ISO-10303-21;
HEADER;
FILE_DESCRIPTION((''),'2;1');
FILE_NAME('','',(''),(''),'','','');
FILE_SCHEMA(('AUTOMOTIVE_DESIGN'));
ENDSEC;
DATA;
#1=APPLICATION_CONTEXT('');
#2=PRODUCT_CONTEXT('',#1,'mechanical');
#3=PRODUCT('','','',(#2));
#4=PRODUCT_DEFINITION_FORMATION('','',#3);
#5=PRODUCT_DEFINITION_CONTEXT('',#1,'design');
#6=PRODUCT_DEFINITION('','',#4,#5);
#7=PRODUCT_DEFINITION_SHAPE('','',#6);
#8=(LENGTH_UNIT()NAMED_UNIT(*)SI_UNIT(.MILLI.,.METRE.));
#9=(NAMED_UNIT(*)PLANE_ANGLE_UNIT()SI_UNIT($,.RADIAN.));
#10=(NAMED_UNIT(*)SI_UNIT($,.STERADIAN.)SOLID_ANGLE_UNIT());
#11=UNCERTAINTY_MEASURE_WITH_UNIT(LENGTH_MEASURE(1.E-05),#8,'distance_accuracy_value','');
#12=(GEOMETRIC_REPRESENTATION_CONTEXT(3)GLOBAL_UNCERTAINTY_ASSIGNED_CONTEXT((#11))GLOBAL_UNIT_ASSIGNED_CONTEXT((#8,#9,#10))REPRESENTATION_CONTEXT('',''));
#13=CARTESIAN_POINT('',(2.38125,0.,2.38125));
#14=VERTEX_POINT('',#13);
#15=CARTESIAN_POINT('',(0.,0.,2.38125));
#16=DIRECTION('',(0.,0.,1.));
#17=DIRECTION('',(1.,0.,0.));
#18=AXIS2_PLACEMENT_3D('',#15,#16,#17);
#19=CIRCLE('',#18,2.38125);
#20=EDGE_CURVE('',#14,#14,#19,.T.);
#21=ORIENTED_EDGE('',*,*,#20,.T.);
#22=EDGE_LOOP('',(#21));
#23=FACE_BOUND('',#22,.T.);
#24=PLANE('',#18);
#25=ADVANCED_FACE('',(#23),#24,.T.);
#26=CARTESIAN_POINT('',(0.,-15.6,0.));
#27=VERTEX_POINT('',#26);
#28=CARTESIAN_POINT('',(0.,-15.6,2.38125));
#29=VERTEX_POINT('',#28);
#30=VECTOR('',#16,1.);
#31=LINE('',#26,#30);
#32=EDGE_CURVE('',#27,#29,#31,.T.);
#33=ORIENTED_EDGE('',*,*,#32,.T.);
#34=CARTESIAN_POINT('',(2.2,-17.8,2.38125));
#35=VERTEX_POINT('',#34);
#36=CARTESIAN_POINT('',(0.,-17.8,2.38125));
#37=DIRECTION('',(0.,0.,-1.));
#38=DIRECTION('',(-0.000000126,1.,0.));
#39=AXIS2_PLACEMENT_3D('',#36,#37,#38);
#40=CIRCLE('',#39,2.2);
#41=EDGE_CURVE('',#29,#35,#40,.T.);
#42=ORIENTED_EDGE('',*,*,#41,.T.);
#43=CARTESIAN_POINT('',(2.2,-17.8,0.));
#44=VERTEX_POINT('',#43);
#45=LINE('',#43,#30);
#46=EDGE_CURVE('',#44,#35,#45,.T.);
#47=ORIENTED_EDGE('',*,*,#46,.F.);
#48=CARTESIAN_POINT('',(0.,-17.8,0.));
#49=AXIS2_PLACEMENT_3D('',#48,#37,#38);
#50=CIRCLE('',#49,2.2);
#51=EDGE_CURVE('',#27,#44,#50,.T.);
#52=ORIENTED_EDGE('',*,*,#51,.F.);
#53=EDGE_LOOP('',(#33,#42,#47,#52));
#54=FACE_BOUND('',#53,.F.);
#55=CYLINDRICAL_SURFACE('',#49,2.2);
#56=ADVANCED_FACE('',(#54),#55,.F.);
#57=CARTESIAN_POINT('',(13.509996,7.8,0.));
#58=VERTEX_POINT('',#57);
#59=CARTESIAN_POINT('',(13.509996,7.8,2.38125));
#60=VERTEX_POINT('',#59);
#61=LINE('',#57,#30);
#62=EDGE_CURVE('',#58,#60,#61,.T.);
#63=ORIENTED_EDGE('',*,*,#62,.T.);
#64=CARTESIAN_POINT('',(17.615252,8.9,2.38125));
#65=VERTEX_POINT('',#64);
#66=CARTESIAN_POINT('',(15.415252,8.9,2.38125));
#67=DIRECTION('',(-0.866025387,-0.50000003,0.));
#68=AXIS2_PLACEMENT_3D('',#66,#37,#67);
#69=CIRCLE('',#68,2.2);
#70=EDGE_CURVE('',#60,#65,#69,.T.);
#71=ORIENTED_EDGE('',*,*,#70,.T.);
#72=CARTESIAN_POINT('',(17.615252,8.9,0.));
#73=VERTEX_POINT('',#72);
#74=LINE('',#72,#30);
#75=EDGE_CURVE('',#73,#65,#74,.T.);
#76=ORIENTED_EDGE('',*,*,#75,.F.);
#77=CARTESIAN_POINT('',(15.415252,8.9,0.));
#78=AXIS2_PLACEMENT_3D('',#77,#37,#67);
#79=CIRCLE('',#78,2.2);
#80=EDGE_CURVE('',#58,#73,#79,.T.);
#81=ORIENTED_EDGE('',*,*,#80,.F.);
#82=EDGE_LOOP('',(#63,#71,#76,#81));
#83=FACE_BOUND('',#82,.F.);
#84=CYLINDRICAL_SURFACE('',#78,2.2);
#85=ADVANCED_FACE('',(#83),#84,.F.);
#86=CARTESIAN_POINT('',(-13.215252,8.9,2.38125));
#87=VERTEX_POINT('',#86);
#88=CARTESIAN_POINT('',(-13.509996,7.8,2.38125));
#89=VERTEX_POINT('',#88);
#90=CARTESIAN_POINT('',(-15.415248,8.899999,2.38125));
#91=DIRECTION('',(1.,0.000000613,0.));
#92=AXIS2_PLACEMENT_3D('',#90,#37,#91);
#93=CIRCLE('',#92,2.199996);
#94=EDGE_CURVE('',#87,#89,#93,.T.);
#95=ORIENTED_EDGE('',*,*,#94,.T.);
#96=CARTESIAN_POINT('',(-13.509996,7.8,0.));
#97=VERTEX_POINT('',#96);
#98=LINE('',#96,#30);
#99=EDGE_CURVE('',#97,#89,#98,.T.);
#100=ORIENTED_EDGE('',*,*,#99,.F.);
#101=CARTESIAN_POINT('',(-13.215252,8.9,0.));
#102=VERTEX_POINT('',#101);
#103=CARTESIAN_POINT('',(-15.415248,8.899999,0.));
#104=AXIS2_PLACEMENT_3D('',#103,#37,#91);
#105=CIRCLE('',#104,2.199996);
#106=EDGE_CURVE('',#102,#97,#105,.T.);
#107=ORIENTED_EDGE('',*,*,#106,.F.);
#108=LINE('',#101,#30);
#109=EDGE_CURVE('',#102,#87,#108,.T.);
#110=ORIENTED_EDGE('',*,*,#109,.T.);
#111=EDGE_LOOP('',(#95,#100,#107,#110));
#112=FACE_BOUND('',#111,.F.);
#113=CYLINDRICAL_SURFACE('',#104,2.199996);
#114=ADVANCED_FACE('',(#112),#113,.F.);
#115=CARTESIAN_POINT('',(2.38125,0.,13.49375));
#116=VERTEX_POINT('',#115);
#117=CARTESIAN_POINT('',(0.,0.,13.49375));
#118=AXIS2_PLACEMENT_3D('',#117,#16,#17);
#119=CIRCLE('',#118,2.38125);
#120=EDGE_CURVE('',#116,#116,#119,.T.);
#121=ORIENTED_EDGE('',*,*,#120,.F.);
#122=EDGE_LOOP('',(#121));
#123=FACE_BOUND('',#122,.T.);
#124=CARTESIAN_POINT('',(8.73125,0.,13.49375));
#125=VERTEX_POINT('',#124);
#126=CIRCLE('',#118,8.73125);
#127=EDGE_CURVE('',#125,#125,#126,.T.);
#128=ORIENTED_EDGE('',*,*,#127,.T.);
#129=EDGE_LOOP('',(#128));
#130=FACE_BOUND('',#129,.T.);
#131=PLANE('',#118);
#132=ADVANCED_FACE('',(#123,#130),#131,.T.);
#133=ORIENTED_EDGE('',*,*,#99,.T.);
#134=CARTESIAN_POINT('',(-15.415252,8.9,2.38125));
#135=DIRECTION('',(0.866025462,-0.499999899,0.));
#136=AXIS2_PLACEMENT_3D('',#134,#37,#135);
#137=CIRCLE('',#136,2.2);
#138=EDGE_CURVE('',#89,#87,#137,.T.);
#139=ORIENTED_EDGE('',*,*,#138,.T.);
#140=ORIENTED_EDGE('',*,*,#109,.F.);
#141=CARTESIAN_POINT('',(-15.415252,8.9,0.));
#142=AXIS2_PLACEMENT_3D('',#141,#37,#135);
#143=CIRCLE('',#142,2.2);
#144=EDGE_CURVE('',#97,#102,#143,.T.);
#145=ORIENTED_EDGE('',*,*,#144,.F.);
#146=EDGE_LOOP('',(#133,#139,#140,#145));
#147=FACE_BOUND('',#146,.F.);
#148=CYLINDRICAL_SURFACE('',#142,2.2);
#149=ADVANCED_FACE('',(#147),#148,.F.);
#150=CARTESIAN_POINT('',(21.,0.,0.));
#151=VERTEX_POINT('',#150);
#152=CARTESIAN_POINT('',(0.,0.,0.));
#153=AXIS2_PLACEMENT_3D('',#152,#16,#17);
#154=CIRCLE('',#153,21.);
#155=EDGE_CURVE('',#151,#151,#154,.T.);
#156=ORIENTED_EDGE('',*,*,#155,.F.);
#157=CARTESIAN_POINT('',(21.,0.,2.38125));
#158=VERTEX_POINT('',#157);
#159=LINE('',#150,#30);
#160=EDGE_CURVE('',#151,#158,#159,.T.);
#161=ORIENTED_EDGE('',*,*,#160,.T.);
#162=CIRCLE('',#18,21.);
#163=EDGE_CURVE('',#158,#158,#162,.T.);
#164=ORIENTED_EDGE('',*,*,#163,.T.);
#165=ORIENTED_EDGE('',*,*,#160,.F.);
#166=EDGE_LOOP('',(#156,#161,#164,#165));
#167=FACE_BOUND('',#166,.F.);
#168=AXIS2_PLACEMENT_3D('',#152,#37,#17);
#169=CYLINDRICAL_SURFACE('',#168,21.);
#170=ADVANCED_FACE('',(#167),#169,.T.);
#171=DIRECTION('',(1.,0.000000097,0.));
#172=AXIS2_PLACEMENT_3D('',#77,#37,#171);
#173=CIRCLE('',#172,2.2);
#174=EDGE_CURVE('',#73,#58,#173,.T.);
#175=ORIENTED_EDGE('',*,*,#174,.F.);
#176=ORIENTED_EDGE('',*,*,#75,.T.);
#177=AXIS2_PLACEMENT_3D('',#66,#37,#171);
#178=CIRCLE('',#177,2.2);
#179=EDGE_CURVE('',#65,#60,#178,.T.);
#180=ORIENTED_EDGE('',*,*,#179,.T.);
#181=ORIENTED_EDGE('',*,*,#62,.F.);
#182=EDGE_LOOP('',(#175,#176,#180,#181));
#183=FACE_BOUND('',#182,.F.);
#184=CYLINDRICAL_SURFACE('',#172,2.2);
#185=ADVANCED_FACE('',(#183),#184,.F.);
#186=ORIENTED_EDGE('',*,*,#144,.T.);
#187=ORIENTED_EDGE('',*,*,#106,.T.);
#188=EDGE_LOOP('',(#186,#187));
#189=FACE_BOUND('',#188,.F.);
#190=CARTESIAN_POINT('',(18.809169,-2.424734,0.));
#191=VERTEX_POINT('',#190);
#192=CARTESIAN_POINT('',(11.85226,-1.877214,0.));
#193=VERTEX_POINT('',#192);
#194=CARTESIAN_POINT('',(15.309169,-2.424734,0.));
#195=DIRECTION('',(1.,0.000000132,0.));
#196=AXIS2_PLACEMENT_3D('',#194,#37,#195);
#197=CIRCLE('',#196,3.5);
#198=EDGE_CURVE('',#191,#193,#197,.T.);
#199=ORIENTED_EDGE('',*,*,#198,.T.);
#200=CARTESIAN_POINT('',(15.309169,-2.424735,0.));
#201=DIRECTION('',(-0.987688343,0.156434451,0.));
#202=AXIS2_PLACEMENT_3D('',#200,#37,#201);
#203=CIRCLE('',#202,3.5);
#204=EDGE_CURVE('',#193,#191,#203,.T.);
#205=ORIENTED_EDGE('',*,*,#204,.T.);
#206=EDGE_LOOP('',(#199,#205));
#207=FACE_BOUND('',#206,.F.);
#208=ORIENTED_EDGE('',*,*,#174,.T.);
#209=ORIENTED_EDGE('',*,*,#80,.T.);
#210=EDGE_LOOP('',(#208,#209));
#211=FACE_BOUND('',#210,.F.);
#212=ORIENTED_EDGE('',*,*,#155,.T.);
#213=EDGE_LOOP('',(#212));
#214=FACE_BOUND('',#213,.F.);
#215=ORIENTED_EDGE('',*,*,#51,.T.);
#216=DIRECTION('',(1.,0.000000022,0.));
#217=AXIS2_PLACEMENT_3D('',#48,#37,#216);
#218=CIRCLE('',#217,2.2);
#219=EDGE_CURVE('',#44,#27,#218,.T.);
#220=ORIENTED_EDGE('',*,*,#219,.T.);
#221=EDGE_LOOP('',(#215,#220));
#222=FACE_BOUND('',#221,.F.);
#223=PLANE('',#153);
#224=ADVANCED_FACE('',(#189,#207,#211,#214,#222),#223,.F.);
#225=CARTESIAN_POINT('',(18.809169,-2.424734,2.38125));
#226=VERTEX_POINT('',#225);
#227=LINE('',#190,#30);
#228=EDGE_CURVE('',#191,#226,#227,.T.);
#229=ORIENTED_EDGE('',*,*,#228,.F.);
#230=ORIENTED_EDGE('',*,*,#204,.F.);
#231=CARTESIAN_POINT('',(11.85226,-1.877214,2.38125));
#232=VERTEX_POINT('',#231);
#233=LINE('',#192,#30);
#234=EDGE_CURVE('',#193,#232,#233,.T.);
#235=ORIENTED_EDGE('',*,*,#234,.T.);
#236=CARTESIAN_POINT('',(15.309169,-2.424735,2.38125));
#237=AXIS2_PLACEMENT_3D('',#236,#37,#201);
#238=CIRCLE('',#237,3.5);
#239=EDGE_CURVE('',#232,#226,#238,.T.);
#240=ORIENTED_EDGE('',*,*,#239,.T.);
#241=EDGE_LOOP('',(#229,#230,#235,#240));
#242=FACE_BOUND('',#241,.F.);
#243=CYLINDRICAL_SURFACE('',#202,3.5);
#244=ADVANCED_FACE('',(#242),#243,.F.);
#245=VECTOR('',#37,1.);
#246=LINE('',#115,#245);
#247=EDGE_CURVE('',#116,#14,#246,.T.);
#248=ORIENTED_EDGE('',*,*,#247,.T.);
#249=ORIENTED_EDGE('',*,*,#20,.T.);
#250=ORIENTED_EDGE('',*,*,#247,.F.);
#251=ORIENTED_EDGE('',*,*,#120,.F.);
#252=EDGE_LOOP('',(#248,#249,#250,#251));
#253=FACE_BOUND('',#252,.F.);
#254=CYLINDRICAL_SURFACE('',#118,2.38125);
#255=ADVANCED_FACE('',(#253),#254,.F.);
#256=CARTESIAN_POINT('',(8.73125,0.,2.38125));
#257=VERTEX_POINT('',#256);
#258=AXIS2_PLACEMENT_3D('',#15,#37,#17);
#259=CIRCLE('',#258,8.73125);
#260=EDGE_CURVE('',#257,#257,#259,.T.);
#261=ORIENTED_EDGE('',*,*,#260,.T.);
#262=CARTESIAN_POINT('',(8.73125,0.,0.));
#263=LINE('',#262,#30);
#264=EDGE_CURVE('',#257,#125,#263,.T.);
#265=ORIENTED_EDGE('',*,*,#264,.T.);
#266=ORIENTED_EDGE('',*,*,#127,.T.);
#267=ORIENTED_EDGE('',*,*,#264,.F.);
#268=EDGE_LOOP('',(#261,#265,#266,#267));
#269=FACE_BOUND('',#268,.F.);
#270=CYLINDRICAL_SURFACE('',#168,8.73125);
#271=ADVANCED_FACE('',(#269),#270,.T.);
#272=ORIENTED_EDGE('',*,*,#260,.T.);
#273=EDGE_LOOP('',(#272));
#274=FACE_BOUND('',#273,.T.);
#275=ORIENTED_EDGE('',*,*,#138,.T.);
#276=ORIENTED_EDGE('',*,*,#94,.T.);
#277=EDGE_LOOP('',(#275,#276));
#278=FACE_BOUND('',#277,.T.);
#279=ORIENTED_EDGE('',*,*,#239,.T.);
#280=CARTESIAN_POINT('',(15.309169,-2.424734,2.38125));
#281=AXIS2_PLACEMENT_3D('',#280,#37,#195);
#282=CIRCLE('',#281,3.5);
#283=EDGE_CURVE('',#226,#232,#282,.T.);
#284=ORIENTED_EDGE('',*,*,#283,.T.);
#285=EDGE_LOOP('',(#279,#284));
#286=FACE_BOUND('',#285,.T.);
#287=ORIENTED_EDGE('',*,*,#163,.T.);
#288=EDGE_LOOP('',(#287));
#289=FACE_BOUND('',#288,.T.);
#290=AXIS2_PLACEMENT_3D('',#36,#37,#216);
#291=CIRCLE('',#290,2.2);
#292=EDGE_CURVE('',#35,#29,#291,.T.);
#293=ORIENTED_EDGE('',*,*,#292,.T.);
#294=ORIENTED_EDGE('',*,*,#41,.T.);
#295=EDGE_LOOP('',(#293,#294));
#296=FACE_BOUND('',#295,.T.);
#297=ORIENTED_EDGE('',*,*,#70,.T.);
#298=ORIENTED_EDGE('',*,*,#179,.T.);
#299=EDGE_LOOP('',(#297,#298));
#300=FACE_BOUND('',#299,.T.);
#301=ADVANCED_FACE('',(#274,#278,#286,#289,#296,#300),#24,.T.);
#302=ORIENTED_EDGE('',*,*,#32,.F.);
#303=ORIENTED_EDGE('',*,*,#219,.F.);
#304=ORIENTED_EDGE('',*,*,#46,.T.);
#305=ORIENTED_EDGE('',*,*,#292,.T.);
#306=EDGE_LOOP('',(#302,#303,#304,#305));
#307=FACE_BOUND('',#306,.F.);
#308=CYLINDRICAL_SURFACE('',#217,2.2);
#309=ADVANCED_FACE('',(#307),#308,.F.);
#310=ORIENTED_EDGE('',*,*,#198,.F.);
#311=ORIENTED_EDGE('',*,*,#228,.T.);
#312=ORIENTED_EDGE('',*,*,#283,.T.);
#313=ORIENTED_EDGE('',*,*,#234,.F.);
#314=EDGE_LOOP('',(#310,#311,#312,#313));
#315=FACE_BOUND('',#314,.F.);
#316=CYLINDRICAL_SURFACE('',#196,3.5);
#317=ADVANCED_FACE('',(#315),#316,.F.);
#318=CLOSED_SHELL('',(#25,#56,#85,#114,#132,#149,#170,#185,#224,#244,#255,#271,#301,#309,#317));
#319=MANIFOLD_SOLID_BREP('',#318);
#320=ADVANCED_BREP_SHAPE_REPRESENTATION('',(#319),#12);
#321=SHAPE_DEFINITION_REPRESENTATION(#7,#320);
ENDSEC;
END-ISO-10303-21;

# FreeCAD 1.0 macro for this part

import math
import FreeCAD as App
import Part
import Sketcher

V = App.Vector
Q = App.Units.Quantity

doc = App.newDocument("Part")
body = doc.addObject("PartDesign::Body", "Body")

# Sketch on XY plane
sketch1 = body.newObject("Sketcher::SketchObject", "Sketch")
sketch1.AttachmentSupport = (doc.getObject("XY_Plane"), [""])
sketch1.MapMode = "FlatFace"
sketch1.addGeometry(Part.Circle(V(0, 0, 0), V(0, 0, 1), 21), False)
sketch1.addConstraint(Sketcher.Constraint("Coincident", 0, 3, -1, 1))
sketch1.addConstraint(Sketcher.Constraint("Diameter", 0, Q("42 mm")))
pad1 = body.newObject("PartDesign::Pad", "Pad")
pad1.Profile = sketch1
pad1.Length = Q("0.09375 in")

# Sketch on XY plane
sketch2 = body.newObject("Sketcher::SketchObject", "Sketch001")
sketch2.AttachmentSupport = (doc.getObject("XY_Plane"), [""])
sketch2.MapMode = "FlatFace"
sketch2.addGeometry(Part.Circle(V(0, 0, 0), V(0, 0, 1), 9), False)
sketch2.addConstraint(Sketcher.Constraint("Coincident", 0, 3, -1, 1))
sketch2.addConstraint(Sketcher.Constraint("Diameter", 0, Q("0.6875 in")))
pad2 = body.newObject("PartDesign::Pad", "Pad001")
pad2.Profile = sketch2
pad2.Length = Q("0.53125 in")

# Sketch on XY plane
sketch3 = body.newObject("Sketcher::SketchObject", "Sketch002")
sketch3.AttachmentSupport = (doc.getObject("XY_Plane"), [""])
sketch3.MapMode = "FlatFace"
sketch3.AttachmentOffset = App.Placement(V(0, 0, 0.53125 * 25.4), App.Rotation())
sketch3.addGeometry(Part.Circle(V(0, 0, 0), V(0, 0, 1), 2.4), False)
sketch3.addConstraint(Sketcher.Constraint("Coincident", 0, 3, -1, 1))
sketch3.addConstraint(Sketcher.Constraint("Diameter", 0, Q("0.1875 in")))
pocket1 = body.newObject("PartDesign::Pocket", "Pocket")
pocket1.Profile = sketch3
pocket1.Length = Q("0.4375 in")

# Sketch on XY plane
sketch4 = body.newObject("Sketcher::SketchObject", "Sketch003")
sketch4.AttachmentSupport = (doc.getObject("XY_Plane"), [""])
sketch4.MapMode = "FlatFace"
sketch4.addGeometry(Part.ArcOfCircle(Part.Circle(V(0, -17.8, 0), V(0, 0, 1), 2.2), math.radians(0), math.radians(90)), False)
sketch4.addGeometry(Part.ArcOfCircle(Part.Circle(V(0, -17.8, 0), V(0, 0, 1), 2.2), math.radians(90), math.radians(360)), False)
sketch4.addConstraint(Sketcher.Constraint("Tangent", 0, 1, 1, 2))
sketch4.addConstraint(Sketcher.Constraint("Coincident", 1, 1, 0, 2))
sketch4.addConstraint(Sketcher.Constraint("PointOnObject", 0, 3, -2))
sketch4.addConstraint(Sketcher.Constraint("PointOnObject", 1, 1, -2))
sketch4.addConstraint(Sketcher.Constraint("Horizontal", 1, 3, 0, 1))
sketch4.addConstraint(Sketcher.Constraint("Radius", 0, Q("2.2 mm")))
sketch4.addConstraint(Sketcher.Constraint("DistanceY", 0, 3, -1, 1, Q("17.8 mm")))
pocket2 = body.newObject("PartDesign::Pocket", "Pocket001")
pocket2.Profile = sketch4
pocket2.Length = Q("0.09375 in")
pocket2.Reversed = True

# Sketch on XY plane
sketch5 = body.newObject("Sketcher::SketchObject", "Sketch004")
sketch5.AttachmentSupport = (doc.getObject("XY_Plane"), [""])
sketch5.MapMode = "FlatFace"
sketch5.addGeometry(Part.ArcOfCircle(Part.Circle(V(0, -17.8, 0), V(0, 0, 1), 2.2), math.radians(0), math.radians(90)), False)
sketch5.addGeometry(Part.ArcOfCircle(Part.Circle(V(0, -17.8, 0), V(0, 0, 1), 2.2), math.radians(90), math.radians(360)), False)
sketch5.addGeometry(Part.ArcOfCircle(Part.Circle(V(15.3, -2.4, 0), V(0, 0, 1), 3.5), math.radians(171), math.radians(360)), False)
sketch5.addGeometry(Part.ArcOfCircle(Part.Circle(V(15.3, -2.4, 0), V(0, 0, 1), 3.5), math.radians(0), math.radians(171)), False)
sketch5.addGeometry(Part.ArcOfCircle(Part.Circle(V(15.4, 8.9, 0), V(0, 0, 1), 2.2), math.radians(-150), math.radians(0)), False)
sketch5.addGeometry(Part.ArcOfCircle(Part.Circle(V(15.4, 8.9, 0), V(0, 0, 1), 2.2), math.radians(0), math.radians(210)), False)
sketch5.addGeometry(Part.ArcOfCircle(Part.Circle(V(-15.4, 8.9, 0), V(0, 0, 1), 2.2), math.radians(-30), math.radians(0)), False)
sketch5.addGeometry(Part.ArcOfCircle(Part.Circle(V(-15.4, 8.9, 0), V(0, 0, 1), 2.2), math.radians(0), math.radians(330)), False)
sketch5.addConstraint(Sketcher.Constraint("Tangent", 0, 1, 1, 2))
sketch5.addConstraint(Sketcher.Constraint("Coincident", 1, 1, 0, 2))
sketch5.addConstraint(Sketcher.Constraint("Tangent", 2, 1, 3, 2))
sketch5.addConstraint(Sketcher.Constraint("Coincident", 3, 1, 2, 2))
sketch5.addConstraint(Sketcher.Constraint("Tangent", 4, 1, 5, 2))
sketch5.addConstraint(Sketcher.Constraint("Coincident", 5, 1, 4, 2))
sketch5.addConstraint(Sketcher.Constraint("Tangent", 6, 1, 7, 2))
sketch5.addConstraint(Sketcher.Constraint("Coincident", 7, 1, 6, 2))
sketch5.addConstraint(Sketcher.Constraint("Equal", 1, 4))
sketch5.addConstraint(Sketcher.Constraint("Equal", 5, 7))
sketch5.addConstraint(Sketcher.Constraint("Symmetric", 4, 3, 6, 3, -2))
sketch5.addConstraint(Sketcher.Constraint("PointOnObject", 0, 3, -2))
sketch5.addConstraint(Sketcher.Constraint("PointOnObject", 1, 1, -2))
sketch5.addConstraint(Sketcher.Constraint("Horizontal", 1, 3, 0, 1))
sketch5.addConstraint(Sketcher.Constraint("Horizontal", 2, 3, 3, 1))
sketch5.addConstraint(Sketcher.Constraint("Horizontal", 7, 3, 5, 1))
sketch5.addConstraint(Sketcher.Constraint("Horizontal", 4, 1, 6, 1))
sketch5.addConstraint(Sketcher.Constraint("Horizontal", 5, 1, 7, 1))
sketch5.addConstraint(Sketcher.Constraint("Radius", 0, Q("2.2 mm")))
sketch5.addConstraint(Sketcher.Constraint("Radius", 2, Q("3.5 mm")))
sketch5.addConstraint(Sketcher.Constraint("DistanceY", 0, 3, -1, 1, Q("17.8 mm")))
sketch5.addConstraint(Sketcher.Constraint("DistanceY", -1, 1, 4, 3, Q("8.9 mm")))
sketch5.addConstraint(Sketcher.Constraint("DistanceY", -1, 1, 4, 1, Q("7.8 mm")))
sketch5.addConstraint(Sketcher.Constraint("DistanceX", 6, 3, 5, 3, Q("30.8305 mm")))
sketch5.addConstraint(Sketcher.Constraint("DistanceX", -1, 1, 2, 3, Q("15.309169 mm")))
sketch5.addConstraint(Sketcher.Constraint("DistanceX", -1, 1, 2, 1, Q("11.85226 mm")))
sketch5.addConstraint(Sketcher.Constraint("DistanceY", 2, 3, -1, 1, Q("2.424734 mm")))
pocket3 = body.newObject("PartDesign::Pocket", "Pocket002")
pocket3.Profile = sketch5
pocket3.Length = Q("0.09375 in")
pocket3.Reversed = True

doc.recompute()
